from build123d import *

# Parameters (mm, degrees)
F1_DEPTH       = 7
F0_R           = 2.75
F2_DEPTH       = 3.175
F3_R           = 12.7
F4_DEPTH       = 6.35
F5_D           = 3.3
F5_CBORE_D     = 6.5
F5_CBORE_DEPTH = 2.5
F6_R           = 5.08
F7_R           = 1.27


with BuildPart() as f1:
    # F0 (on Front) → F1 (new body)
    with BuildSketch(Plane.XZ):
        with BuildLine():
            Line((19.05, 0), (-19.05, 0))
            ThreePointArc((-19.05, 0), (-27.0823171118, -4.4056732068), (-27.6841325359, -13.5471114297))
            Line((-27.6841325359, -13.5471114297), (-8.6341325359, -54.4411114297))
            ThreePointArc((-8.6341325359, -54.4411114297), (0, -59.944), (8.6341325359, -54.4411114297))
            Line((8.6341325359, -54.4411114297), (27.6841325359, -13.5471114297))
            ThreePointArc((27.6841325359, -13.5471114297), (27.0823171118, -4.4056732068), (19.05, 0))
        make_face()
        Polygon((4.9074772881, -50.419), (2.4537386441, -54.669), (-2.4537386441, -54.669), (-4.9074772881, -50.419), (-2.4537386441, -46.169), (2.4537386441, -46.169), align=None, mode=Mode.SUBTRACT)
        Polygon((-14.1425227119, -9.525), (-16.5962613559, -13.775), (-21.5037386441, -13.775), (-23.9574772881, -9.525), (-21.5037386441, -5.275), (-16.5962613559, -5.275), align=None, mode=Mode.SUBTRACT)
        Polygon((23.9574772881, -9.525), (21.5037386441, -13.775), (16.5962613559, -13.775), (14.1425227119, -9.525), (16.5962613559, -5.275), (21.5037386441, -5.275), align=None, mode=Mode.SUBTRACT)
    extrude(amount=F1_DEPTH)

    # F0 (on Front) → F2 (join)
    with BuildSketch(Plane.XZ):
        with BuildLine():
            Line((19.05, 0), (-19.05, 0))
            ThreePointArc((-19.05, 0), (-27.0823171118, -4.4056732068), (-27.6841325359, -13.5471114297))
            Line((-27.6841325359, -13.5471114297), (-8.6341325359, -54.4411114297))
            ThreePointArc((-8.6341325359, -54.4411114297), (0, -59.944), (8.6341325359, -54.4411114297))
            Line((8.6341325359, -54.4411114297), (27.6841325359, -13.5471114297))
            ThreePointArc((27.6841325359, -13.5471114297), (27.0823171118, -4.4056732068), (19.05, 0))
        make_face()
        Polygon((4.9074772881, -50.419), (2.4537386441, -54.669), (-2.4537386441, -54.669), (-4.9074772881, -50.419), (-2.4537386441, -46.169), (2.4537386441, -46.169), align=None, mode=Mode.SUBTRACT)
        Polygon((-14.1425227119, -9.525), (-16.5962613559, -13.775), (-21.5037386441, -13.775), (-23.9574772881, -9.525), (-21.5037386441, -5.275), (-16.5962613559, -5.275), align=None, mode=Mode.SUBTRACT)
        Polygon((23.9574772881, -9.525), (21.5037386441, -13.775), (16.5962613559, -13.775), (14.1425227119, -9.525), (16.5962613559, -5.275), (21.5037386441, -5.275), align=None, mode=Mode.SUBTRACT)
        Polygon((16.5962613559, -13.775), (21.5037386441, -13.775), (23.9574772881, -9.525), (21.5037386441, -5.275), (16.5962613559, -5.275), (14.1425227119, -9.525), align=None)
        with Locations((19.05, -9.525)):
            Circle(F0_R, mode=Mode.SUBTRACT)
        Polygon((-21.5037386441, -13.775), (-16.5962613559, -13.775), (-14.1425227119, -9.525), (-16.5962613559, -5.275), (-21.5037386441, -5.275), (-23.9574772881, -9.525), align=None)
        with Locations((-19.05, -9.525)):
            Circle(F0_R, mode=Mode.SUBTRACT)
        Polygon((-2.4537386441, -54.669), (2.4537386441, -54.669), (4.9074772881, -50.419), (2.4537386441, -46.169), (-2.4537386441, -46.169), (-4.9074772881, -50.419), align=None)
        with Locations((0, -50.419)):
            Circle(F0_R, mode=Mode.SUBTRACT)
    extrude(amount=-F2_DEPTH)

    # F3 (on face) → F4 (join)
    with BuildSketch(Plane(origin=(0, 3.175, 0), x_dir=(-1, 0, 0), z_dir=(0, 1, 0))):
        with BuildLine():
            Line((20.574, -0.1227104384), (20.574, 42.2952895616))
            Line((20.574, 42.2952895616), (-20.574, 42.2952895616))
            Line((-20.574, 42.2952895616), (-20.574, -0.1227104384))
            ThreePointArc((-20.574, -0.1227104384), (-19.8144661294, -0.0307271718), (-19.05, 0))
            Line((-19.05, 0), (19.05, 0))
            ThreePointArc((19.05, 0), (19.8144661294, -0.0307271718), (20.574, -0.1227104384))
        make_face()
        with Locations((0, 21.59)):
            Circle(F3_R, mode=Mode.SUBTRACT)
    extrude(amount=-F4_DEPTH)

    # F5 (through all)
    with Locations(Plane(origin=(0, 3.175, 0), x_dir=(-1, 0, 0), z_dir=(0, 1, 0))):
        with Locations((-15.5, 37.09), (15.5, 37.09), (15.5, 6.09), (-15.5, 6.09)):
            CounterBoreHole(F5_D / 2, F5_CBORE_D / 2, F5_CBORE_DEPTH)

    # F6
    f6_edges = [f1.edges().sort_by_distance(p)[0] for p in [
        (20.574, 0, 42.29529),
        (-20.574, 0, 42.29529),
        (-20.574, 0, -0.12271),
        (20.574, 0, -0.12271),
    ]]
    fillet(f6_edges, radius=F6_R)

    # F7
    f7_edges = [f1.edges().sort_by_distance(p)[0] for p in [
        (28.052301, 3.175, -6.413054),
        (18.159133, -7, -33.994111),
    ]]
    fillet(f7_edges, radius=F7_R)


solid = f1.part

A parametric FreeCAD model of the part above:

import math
import FreeCAD as App
import Part
import Sketcher
from FreeCAD import Vector
Q = App.Units.Quantity


def edges_at(feature, points):
    """Names of the edges that pass closest to the given points."""
    edges = feature.Shape.Edges
    near = lambda p: min(range(len(edges)), key=lambda i: edges[i].distToShape(Part.Vertex(*p))[0])
    return sorted({f"Edge{near(p) + 1}" for p in points})


def add_polygon(sketch, points):
    """Adds a closed chain of lines whose ends are joined by coincident constraints."""
    first, n = sketch.GeometryCount, len(points)
    for a, b in zip(points, points[1:] + points[:1]):
        sketch.addGeometry(Part.LineSegment(App.Vector(*a, 0), App.Vector(*b, 0)), False)
    for i in range(n):
        sketch.addConstraint(Sketcher.Constraint("Coincident", first + i, 2, first + (i + 1) % n, 1))

doc = App.newDocument("Part")
body = doc.addObject("PartDesign::Body", "Body")

# Sketch on XZ plane
sketch1 = body.newObject("Sketcher::SketchObject", "Sketch")
sketch1.AttachmentSupport = (doc.getObject("XZ_Plane"), [""])
sketch1.MapMode = "FlatFace"
sketch1.addGeometry(Part.LineSegment(Vector(19.1, 0, 0), Vector(-19.1, 0, 0)), False)  # 0
sketch1.addGeometry(Part.ArcOfCircle(Part.Circle(Vector(-19.1, -9.5, 0), Vector(0, 0, 1), 9.5), math.radians(90), math.radians(205)), False)  # 1
sketch1.addGeometry(Part.LineSegment(Vector(-27.7, -13.5, 0), Vector(-8.6, -54.4, 0)), False)  # 2
sketch1.addGeometry(Part.ArcOfCircle(Part.Circle(Vector(0, -50.4, 0), Vector(0, 0, 1), 9.5), math.radians(-155), math.radians(-25)), False)  # 3
sketch1.addGeometry(Part.LineSegment(Vector(8.6, -54.4, 0), Vector(27.7, -13.5, 0)), False)  # 4
sketch1.addGeometry(Part.ArcOfCircle(Part.Circle(Vector(19.1, -9.5, 0), Vector(0, 0, 1), 9.5), math.radians(-25), math.radians(90)), False)  # 5
add_polygon(sketch1, [(2.5, -46.2), (4.9, -50.4), (2.5, -54.7), (-2.5, -54.7), (-4.9, -50.4), (-2.5, -46.2)])  # lines 6-11
add_polygon(sketch1, [(-16.6, -5.3), (-14.1, -9.5), (-16.6, -13.8), (-21.5, -13.8), (-24, -9.5), (-21.5, -5.3)])  # lines 12-17
add_polygon(sketch1, [(21.5, -5.3), (24, -9.5), (21.5, -13.8), (16.6, -13.8), (14.1, -9.5), (16.6, -5.3)])  # lines 18-23
sketch1.addConstraint([
    Sketcher.Constraint("Tangent", 0, 2, 1, 1),
    Sketcher.Constraint("Tangent", 1, 2, 2, 1),
    Sketcher.Constraint("Tangent", 2, 2, 3, 1),
    Sketcher.Constraint("Tangent", 3, 2, 4, 1),
    Sketcher.Constraint("Tangent", 4, 2, 5, 1),
    Sketcher.Constraint("Tangent", 5, 2, 0, 1),
    Sketcher.Constraint("Horizontal", 0),
    Sketcher.Constraint("Horizontal", 8),
    Sketcher.Constraint("Horizontal", 11),
    Sketcher.Constraint("Horizontal", 14),
    Sketcher.Constraint("Horizontal", 17),
    Sketcher.Constraint("Horizontal", 20),
    Sketcher.Constraint("Horizontal", 23),
    Sketcher.Constraint("Equal", 1, 3),
    Sketcher.Constraint("Equal", 3, 5),
    Sketcher.Constraint("Symmetric", 0, 2, 5, 2, -1, 1),
    Sketcher.Constraint("Symmetric", 6, 2, 9, 2, -2),
    Sketcher.Constraint("Symmetric", 15, 2, 18, 2, -2),
    Sketcher.Constraint("Symmetric", 14, 2, 19, 2, -2),
    Sketcher.Constraint("Symmetric", 12, 2, 21, 2, -2),
    Sketcher.Constraint("Symmetric", 17, 2, 22, 2, -2),
    Sketcher.Constraint("PointOnObject", 3, 3, -2),
    Sketcher.Constraint("Parallel", 6, 9),
    Sketcher.Constraint("Parallel", 7, 10),
    Sketcher.Constraint("Parallel", 9, 12),
    Sketcher.Constraint("Parallel", 10, 13),
    Sketcher.Constraint("Parallel", 12, 15),
    Sketcher.Constraint("Parallel", 13, 16),
    Sketcher.Constraint("Parallel", 15, 18),
    Sketcher.Constraint("Parallel", 16, 19),
    Sketcher.Constraint("Parallel", 18, 21),
    Sketcher.Constraint("Horizontal", 3, 3, 6, 2),
    Sketcher.Constraint("Horizontal", 5, 3, 12, 2),
    Sketcher.Constraint("Horizontal", 12, 2, 15, 2),
    Sketcher.Constraint("Vertical", 8, 2, 10, 2),
    Sketcher.Constraint("Vertical", 14, 2, 16, 2),
    Sketcher.Constraint("Equal", 11, 14),
    Sketcher.Constraint("Equal", 10, 12),
    Sketcher.Constraint("DistanceX", 0, 2, 0, 1, Q("1.5 in")),
    Sketcher.Constraint("Angle", 6, Q("-60 deg")),
    Sketcher.Constraint("Radius", 1, Q("0.375 in")),
    Sketcher.Constraint("DistanceX", 12, 2, 18, 2, Q("1.5 in")),
    Sketcher.Constraint("DistanceY", 3, 3, 1, 3, Q("1.61 in")),
    Sketcher.Constraint("DistanceY", 7, 2, -1, 1, Q("54.669 mm")),
    Sketcher.Constraint("DistanceX", 8, 2, 8, 1, Q("4.907477 mm")),
])
pad1 = body.newObject("PartDesign::Pad", "Pad")
pad1.Profile = sketch1
pad1.Length = 7

# Sketch on XZ plane
sketch2 = body.newObject("Sketcher::SketchObject", "Sketch001")
sketch2.AttachmentSupport = (doc.getObject("XZ_Plane"), [""])
sketch2.MapMode = "FlatFace"
sketch2.addGeometry([
    Part.LineSegment(Vector(19.1, 0, 0), Vector(-19.1, 0, 0)),  # 0
    Part.ArcOfCircle(Part.Circle(Vector(-19.1, -9.5, 0), Vector(0, 0, 1), 9.5), math.radians(90), math.radians(205)),  # 1
    Part.LineSegment(Vector(-27.7, -13.5, 0), Vector(-8.6, -54.4, 0)),  # 2
    Part.ArcOfCircle(Part.Circle(Vector(0, -50.4, 0), Vector(0, 0, 1), 9.5), math.radians(-155), math.radians(-25)),  # 3
    Part.LineSegment(Vector(8.6, -54.4, 0), Vector(27.7, -13.5, 0)),  # 4
    Part.ArcOfCircle(Part.Circle(Vector(19.1, -9.5, 0), Vector(0, 0, 1), 9.5), math.radians(-25), math.radians(90)),  # 5
    Part.Circle(Vector(0, -50.4, 0), Vector(0, 0, 1), 2.8),  # 6
    Part.Circle(Vector(-19.1, -9.5, 0), Vector(0, 0, 1), 2.8),  # 7
    Part.Circle(Vector(19.1, -9.5, 0), Vector(0, 0, 1), 2.8),  # 8
], False)
sketch2.addConstraint([
    Sketcher.Constraint("Tangent", 0, 2, 1, 1),
    Sketcher.Constraint("Tangent", 1, 2, 2, 1),
    Sketcher.Constraint("Tangent", 2, 2, 3, 1),
    Sketcher.Constraint("Tangent", 3, 2, 4, 1),
    Sketcher.Constraint("Tangent", 4, 2, 5, 1),
    Sketcher.Constraint("Tangent", 5, 2, 0, 1),
    Sketcher.Constraint("Horizontal", 0),
    Sketcher.Constraint("Coincident", 6, 3, 3, 3),
    Sketcher.Constraint("Coincident", 7, 3, 1, 3),
    Sketcher.Constraint("Coincident", 8, 3, 5, 3),
    Sketcher.Constraint("Equal", 1, 3),
    Sketcher.Constraint("Equal", 3, 5),
    Sketcher.Constraint("Equal", 6, 7),
    Sketcher.Constraint("Equal", 7, 8),
    Sketcher.Constraint("Symmetric", 0, 2, 5, 2, -1, 1),
    Sketcher.Constraint("PointOnObject", 3, 3, -2),
    Sketcher.Constraint("DistanceX", 0, 2, 0, 1, Q("1.5 in")),
    Sketcher.Constraint("Radius", 1, Q("0.375 in")),
    Sketcher.Constraint("Diameter", 6, Q("5.5 mm")),
    Sketcher.Constraint("DistanceY", 3, 3, 1, 3, Q("1.61 in")),
])
pad2 = body.newObject("PartDesign::Pad", "Pad001")
pad2.Profile = sketch2
pad2.Length = Q("0.125 in")
pad2.Reversed = True

# Sketch on XZ plane
sketch3 = body.newObject("Sketcher::SketchObject", "Sketch002")
sketch3.AttachmentSupport = (doc.getObject("XZ_Plane"), [""])
sketch3.MapMode = "FlatFace"
sketch3.AttachmentOffset = App.Placement(Vector(0, 0, -0.125 * 25.4), App.Rotation())
sketch3.addGeometry([
    Part.LineSegment(Vector(-20.6, -0.1, 0), Vector(-20.6, 42.3, 0)),  # 0
    Part.LineSegment(Vector(-20.6, 42.3, 0), Vector(20.6, 42.3, 0)),  # 1
    Part.LineSegment(Vector(20.6, 42.3, 0), Vector(20.6, -0.1, 0)),  # 2
    Part.ArcOfCircle(Part.Circle(Vector(19, -9.5, 0), Vector(0, 0, 1), 9.5), math.radians(80.79), math.radians(90)),  # 3
    Part.LineSegment(Vector(19.1, 0, 0), Vector(-19.1, 0, 0)),  # 4
    Part.ArcOfCircle(Part.Circle(Vector(-19, -9.5, 0), Vector(0, 0, 1), 9.5), math.radians(90), math.radians(99.21)),  # 5
    Part.Circle(Vector(0, 21.6, 0), Vector(0, 0, 1), 12.7),  # 6
], False)
sketch3.addConstraint([
    Sketcher.Constraint("Coincident", 0, 2, 1, 1),
    Sketcher.Constraint("Coincident", 1, 2, 2, 1),
    Sketcher.Constraint("Coincident", 2, 2, 3, 1),
    Sketcher.Constraint("Tangent", 3, 2, 4, 1),
    Sketcher.Constraint("Tangent", 4, 2, 5, 1),
    Sketcher.Constraint("Coincident", 5, 2, 0, 1),
    Sketcher.Constraint("Vertical", 0),
    Sketcher.Constraint("Horizontal", 1),
    Sketcher.Constraint("Vertical", 2),
    Sketcher.Constraint("Horizontal", 4),
    Sketcher.Constraint("Equal", 3, 5),
    Sketcher.Constraint("Symmetric", 3, 2, 4, 2, -1, 1),
    Sketcher.Constraint("PointOnObject", 6, 3, -2),
    Sketcher.Constraint("Horizontal", 2, 2, 5, 2),
    Sketcher.Constraint("Diameter", 6, Q("1 in")),
    Sketcher.Constraint("DistanceX", 4, 2, 4, 1, Q("1.5 in")),
    Sketcher.Constraint("Radius", 3, Q("0.375 in")),
    Sketcher.Constraint("DistanceX", 1, 1, 1, 2, Q("1.62 in")),
    Sketcher.Constraint("DistanceY", 0, 1, 0, 2, Q("1.67 in")),
    Sketcher.Constraint("DistanceY", -1, 1, 6, 3, Q("0.85 in")),
])
pad3 = body.newObject("PartDesign::Pad", "Pad002")
pad3.Profile = sketch3
pad3.Length = Q("0.25 in")

# Sketch on XZ plane
sketch4 = body.newObject("Sketcher::SketchObject", "Sketch003")
sketch4.AttachmentSupport = (doc.getObject("XZ_Plane"), [""])
sketch4.MapMode = "FlatFace"
sketch4.AttachmentOffset = App.Placement(Vector(0, 0, -0.125 * 25.4), App.Rotation())
sketch4.addGeometry([
    Part.Circle(Vector(15.5, 37.1, 0), Vector(0, 0, 1), 1.6),
    Part.Circle(Vector(-15.5, 37.1, 0), Vector(0, 0, 1), 1.6),
    Part.Circle(Vector(-15.5, 6.1, 0), Vector(0, 0, 1), 1.6),
    Part.Circle(Vector(15.5, 6.1, 0), Vector(0, 0, 1), 1.6),
], False)
sketch4.addConstraint([
    Sketcher.Constraint("Equal", 0, 1),
    Sketcher.Constraint("Equal", 1, 2),
    Sketcher.Constraint("Equal", 2, 3),
    Sketcher.Constraint("Symmetric", 0, 3, 1, 3, -2),
    Sketcher.Constraint("Symmetric", 2, 3, 3, 3, -2),
    Sketcher.Constraint("Vertical", 1, 3, 2, 3),
    Sketcher.Constraint("Diameter", 0, Q("3.3 mm")),
    Sketcher.Constraint("DistanceX", -1, 1, 0, 3, Q("15.5 mm")),
    Sketcher.Constraint("DistanceY", -1, 1, 0, 3, Q("37.09 mm")),
    Sketcher.Constraint("DistanceY", -1, 1, 2, 3, Q("6.09 mm")),
])
doc.recompute()
hole = body.newObject("PartDesign::Hole", "Hole")
hole.Profile = sketch4
hole.ThreadType = "None"
hole.Diameter = 3.3
hole.DepthType = "ThroughAll"
hole.HoleCutType = "Counterbore"
hole.HoleCutDiameter = 6.5
hole.HoleCutDepth = 2.5
hole.Reversed = True
doc.recompute()

fillet = body.newObject("PartDesign::Fillet", "Fillet")
fillet.Base = (hole, edges_at(hole, [
    (20.574, 0, 42.295),
    (-20.574, 0, 42.295),
    (-20.574, 0, -0.123),
    (20.574, 0, -0.123),
]))
fillet.Radius = Q("0.2 in")
doc.recompute()

fillet2 = body.newObject("PartDesign::Fillet", "Fillet001")
fillet2.Base = (fillet, edges_at(fillet, [(28.052, 3.175, -6.413), (18.159, -7, -33.994)]))
fillet2.Radius = Q("0.05 in")

doc.recompute()
